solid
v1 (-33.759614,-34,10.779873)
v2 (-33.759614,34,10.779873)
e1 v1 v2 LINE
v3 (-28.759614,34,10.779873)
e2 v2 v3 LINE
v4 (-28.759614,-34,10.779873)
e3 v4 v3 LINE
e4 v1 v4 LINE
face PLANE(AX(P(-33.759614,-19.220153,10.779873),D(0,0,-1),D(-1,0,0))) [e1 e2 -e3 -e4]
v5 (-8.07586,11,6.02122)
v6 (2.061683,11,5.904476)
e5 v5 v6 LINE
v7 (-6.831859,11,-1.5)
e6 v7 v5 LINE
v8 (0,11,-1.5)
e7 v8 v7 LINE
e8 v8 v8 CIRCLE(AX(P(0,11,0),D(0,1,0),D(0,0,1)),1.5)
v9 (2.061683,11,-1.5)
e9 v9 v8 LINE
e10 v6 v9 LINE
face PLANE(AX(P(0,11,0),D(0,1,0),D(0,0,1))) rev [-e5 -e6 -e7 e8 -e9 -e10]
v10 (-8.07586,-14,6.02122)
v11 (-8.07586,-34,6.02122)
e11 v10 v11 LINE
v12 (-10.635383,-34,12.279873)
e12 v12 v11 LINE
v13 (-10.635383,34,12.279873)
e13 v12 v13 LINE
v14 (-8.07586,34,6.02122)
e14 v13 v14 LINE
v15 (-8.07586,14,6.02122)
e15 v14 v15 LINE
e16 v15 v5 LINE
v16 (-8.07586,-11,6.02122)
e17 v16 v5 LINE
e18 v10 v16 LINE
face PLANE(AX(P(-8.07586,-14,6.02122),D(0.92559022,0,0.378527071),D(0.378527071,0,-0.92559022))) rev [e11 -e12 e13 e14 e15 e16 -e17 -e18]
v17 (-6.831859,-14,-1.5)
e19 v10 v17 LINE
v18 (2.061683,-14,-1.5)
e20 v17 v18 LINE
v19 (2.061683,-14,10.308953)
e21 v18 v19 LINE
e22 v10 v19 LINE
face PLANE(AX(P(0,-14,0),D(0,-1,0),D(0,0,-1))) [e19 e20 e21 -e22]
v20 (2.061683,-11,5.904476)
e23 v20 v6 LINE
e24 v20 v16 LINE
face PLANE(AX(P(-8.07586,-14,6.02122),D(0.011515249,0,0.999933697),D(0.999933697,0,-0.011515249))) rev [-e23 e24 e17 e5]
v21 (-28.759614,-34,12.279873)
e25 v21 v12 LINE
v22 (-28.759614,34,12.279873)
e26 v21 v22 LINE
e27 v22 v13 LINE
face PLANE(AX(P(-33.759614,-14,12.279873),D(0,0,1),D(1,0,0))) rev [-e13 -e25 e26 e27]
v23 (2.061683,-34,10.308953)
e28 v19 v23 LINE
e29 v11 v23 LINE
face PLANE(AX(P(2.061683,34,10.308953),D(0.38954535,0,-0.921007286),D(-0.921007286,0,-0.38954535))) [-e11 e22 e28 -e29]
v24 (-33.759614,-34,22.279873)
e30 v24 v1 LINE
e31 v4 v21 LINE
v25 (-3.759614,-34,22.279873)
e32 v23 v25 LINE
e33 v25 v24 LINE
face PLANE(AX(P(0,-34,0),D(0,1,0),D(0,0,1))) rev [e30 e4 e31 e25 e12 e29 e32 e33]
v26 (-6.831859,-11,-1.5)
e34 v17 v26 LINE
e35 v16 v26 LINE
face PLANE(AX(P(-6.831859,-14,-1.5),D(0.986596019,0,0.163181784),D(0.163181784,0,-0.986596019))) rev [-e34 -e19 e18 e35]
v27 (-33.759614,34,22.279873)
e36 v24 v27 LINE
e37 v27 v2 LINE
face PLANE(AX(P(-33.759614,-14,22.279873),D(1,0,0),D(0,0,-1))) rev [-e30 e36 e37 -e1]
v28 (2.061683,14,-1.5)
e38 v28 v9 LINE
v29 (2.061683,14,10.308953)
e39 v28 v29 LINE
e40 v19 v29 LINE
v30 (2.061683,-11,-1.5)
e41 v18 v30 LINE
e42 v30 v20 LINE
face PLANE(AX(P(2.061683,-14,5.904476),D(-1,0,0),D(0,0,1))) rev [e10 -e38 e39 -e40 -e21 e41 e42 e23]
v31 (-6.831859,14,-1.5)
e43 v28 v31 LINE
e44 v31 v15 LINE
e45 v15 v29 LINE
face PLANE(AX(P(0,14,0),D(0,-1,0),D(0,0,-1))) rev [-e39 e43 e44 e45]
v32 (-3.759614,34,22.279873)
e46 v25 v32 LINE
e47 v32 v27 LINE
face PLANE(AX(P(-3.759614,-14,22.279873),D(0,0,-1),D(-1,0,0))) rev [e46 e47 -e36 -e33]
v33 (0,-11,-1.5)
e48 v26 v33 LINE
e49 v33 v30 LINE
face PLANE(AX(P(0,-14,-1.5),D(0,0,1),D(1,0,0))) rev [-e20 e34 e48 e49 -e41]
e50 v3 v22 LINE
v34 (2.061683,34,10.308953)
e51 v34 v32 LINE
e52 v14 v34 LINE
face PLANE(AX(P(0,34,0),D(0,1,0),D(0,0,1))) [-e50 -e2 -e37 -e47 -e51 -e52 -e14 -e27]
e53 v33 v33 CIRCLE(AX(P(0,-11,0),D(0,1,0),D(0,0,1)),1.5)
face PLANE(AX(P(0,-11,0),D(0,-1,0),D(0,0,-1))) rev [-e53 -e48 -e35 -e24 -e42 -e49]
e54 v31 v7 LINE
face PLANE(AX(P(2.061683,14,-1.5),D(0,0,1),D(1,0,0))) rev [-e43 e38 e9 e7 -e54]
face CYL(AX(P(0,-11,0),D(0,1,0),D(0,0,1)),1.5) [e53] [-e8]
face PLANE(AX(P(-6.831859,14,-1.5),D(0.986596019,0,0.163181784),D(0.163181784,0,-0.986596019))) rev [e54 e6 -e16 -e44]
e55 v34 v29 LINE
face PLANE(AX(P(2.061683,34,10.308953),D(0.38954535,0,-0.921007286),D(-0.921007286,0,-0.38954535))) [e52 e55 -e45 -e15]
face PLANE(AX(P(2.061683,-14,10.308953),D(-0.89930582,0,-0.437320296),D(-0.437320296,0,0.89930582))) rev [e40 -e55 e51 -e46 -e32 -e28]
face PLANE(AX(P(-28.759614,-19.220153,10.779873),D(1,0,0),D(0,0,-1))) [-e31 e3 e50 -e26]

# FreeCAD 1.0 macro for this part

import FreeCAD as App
import Part
import Sketcher

V = App.Vector
Q = App.Units.Quantity


def add_polygon(sketch, points):
    """Adds a closed chain of lines whose ends are joined by coincident constraints."""
    first, n = sketch.GeometryCount, len(points)
    for a, b in zip(points, points[1:] + points[:1]):
        sketch.addGeometry(Part.LineSegment(App.Vector(*a, 0), App.Vector(*b, 0)), False)
    for i in range(n):
        sketch.addConstraint(Sketcher.Constraint("Coincident", first + i, 2, first + (i + 1) % n, 1))

doc = App.newDocument("Part")
body = doc.addObject("PartDesign::Body", "Body")

# Sketch on XZ plane
sketch1 = body.newObject("Sketcher::SketchObject", "Sketch")
sketch1.AttachmentSupport = (doc.getObject("XZ_Plane"), [""])
sketch1.MapMode = "FlatFace"
sketch1.addGeometry(Part.Circle(V(0, 0, 0), V(0, 0, 1), 1.5), False)
sketch1.addConstraint([
    Sketcher.Constraint("Coincident", 0, 3, -1, 1),
    Sketcher.Constraint("Diameter", 0, Q("3 mm")),
])
pad1 = body.newObject("PartDesign::Pad", "Pad")
pad1.Profile = sketch1
pad1.Type = "TwoLengths"
pad1.Length = 11
pad1.Length2 = 11
pad1.Reversed = True
body2 = doc.addObject("PartDesign::Body", "Body001")

# Sketch on XZ plane
sketch2 = body2.newObject("Sketcher::SketchObject", "Sketch001")
sketch2.AttachmentSupport = (doc.getObject("XZ_Plane001"), [""])
sketch2.MapMode = "FlatFace"
sketch2.AttachmentOffset = App.Placement(V(0, 0, 11), App.Rotation())
add_polygon(sketch2, [(2.061683, 10.308953), (-3.759614, 22.279873), (-33.759614, 22.279873), (-33.759614, 12.279873), (-28.759614, 12.279873), (-28.759614, 10.279873), (-23.759614, 10.279873), (-23.759614, 12.279873), (-10.635383, 12.279873), (-8.07586, 6.02122), (2.061683, 5.904476)])  # lines 0-10
sketch2.addConstraint([
    Sketcher.Constraint("Horizontal", 1),
    Sketcher.Constraint("Vertical", 2),
    Sketcher.Constraint("Horizontal", 3),
    Sketcher.Constraint("Vertical", 4),
    Sketcher.Constraint("Horizontal", 5),
    Sketcher.Constraint("Vertical", 6),
    Sketcher.Constraint("Horizontal", 7),
    Sketcher.Constraint("Vertical", 10),
    Sketcher.Constraint("Horizontal", 3, 2, 6, 2),
    Sketcher.Constraint("Equal", 3, 5),
    Sketcher.Constraint("DistanceX", 1, 2, 1, 1, Q("30 mm")),
    Sketcher.Constraint("DistanceX", 3, 1, 3, 2, Q("5 mm")),
    Sketcher.Constraint("DistanceY", 2, 2, 2, 1, Q("10 mm")),
    Sketcher.Constraint("DistanceY", 4, 2, 4, 1, Q("2 mm")),
    Sketcher.Constraint("DistanceX", 7, 1, 7, 2, Q("13.124231 mm")),
    Sketcher.Constraint("Distance", 0, Q("13.31129 mm")),
    Sketcher.Constraint("DistanceY", 10, 1, 10, 2, Q("4.404476 mm")),
    Sketcher.Constraint("DistanceX", 8, 2, -1, 1, Q("8.07586 mm")),
    Sketcher.Constraint("DistanceY", -1, 1, 8, 2, Q("6.02122 mm")),
    Sketcher.Constraint("DistanceY", 10, 2, 7, 2, Q("1.97092 mm")),
    Sketcher.Constraint("Distance", 8, Q("6.761796 mm")),
    Sketcher.Constraint("Distance", 9, Q("10.138215 mm")),
])
pad2 = body2.newObject("PartDesign::Pad", "Pad001")
pad2.Profile = sketch2
pad2.Type = "TwoLengths"
pad2.Length = 3
pad2.Length2 = 25
body.AllowCompound = True
doc.recompute()

boolean = body.newObject("PartDesign::Boolean", "Boolean")
boolean.Type = "Fuse"
boolean.addObjects([body2])

# Sketch on XZ plane
sketch3 = body.newObject("Sketcher::SketchObject", "Sketch002")
sketch3.AttachmentSupport = (doc.getObject("XZ_Plane"), [""])
sketch3.MapMode = "FlatFace"
sketch3.AttachmentOffset = App.Placement(V(0, 0, 11), App.Rotation())
add_polygon(sketch3, [(-6.831859, -1.5), (2.061683, -1.5), (2.061683, 5.904476), (-8.07586, 6.02122)])  # lines 0-3
sketch3.addConstraint([
    Sketcher.Constraint("Horizontal", 0),
    Sketcher.Constraint("Vertical", 1),
    Sketcher.Constraint("DistanceY", 0, 2, -1, 1, Q("1.5 mm")),
    Sketcher.Constraint("DistanceX", 2, 2, 3, 2, Q("1.244001 mm")),
    Sketcher.Constraint("DistanceX", 0, 1, 0, 2, Q("8.893542 mm")),
    Sketcher.Constraint("DistanceY", 1, 1, 1, 2, Q("7.404476 mm")),
    Sketcher.Constraint("DistanceX", 2, 2, -1, 1, Q("8.07586 mm")),
    Sketcher.Constraint("DistanceY", -1, 1, 2, 2, Q("6.02122 mm")),
])
pad3 = body.newObject("PartDesign::Pad", "Pad002")
pad3.Profile = sketch3
pad3.Length = 3

# Sketch on XZ plane
sketch4 = body.newObject("Sketcher::SketchObject", "Sketch003")
sketch4.AttachmentSupport = (doc.getObject("XZ_Plane"), [""])
sketch4.MapMode = "FlatFace"
sketch4.AttachmentOffset = App.Placement(V(0, 0, -11), App.Rotation())
add_polygon(sketch4, [(2.061683, -1.5), (-6.831859, -1.5), (-8.07586, 6.02122), (2.061683, 5.904476)])  # lines 0-3
sketch4.addConstraint([
    Sketcher.Constraint("Horizontal", 0),
    Sketcher.Constraint("Vertical", 3),
    Sketcher.Constraint("DistanceY", 0, 2, -1, 1, Q("1.5 mm")),
    Sketcher.Constraint("DistanceX", 1, 2, 0, 2, Q("1.244001 mm")),
    Sketcher.Constraint("DistanceX", 0, 2, 0, 1, Q("8.893542 mm")),
    Sketcher.Constraint("DistanceY", 3, 2, 3, 1, Q("7.404476 mm")),
    Sketcher.Constraint("DistanceX", 0, 2, -1, 1, Q("6.831859 mm")),
    Sketcher.Constraint("DistanceY", -1, 1, 1, 2, Q("6.02122 mm")),
])
pad4 = body.newObject("PartDesign::Pad", "Pad003")
pad4.Profile = sketch4
pad4.Length = 3
pad4.Reversed = True

# Sketch on XZ plane
sketch5 = body.newObject("Sketcher::SketchObject", "Sketch004")
sketch5.AttachmentSupport = (doc.getObject("XZ_Plane"), [""])
sketch5.MapMode = "FlatFace"
sketch5.AttachmentOffset = App.Placement(V(0, 0, -14), App.Rotation())
add_polygon(sketch5, [(-28.759614, 10.279873), (-28.759614, 12.279873), (-23.759614, 12.279873), (-23.759614, 10.279873)])  # lines 0-3
sketch5.addConstraint([
    Sketcher.Constraint("Vertical", 0),
    Sketcher.Constraint("Horizontal", 1),
    Sketcher.Constraint("Vertical", 2),
    Sketcher.Constraint("Horizontal", 3),
    Sketcher.Constraint("DistanceX", 1, 1, 1, 2, Q("5 mm")),
    Sketcher.Constraint("DistanceY", 0, 1, 0, 2, Q("2 mm")),
    Sketcher.Constraint("DistanceX", 0, 2, -1, 1, Q("28.759614 mm")),
    Sketcher.Constraint("DistanceY", -1, 1, 0, 2, Q("12.279873 mm")),
])
pocket1 = body.newObject("PartDesign::Pocket", "Pocket")
pocket1.Profile = sketch5
pocket1.Length = 39
pocket1.Reversed = True

# Sketch on XZ plane
sketch6 = body.newObject("Sketcher::SketchObject", "Sketch005")
sketch6.AttachmentSupport = (doc.getObject("XZ_Plane"), [""])
sketch6.MapMode = "FlatFace"
sketch6.AttachmentOffset = App.Placement(V(0, 0, -14), App.Rotation())
add_polygon(sketch6, [(-33.759614, 10.779873), (-33.759614, 12.279873), (-28.759614, 12.279873), (-28.759614, 10.779873)])  # lines 0-3
sketch6.addConstraint([
    Sketcher.Constraint("Vertical", 0),
    Sketcher.Constraint("Horizontal", 1),
    Sketcher.Constraint("Vertical", 2),
    Sketcher.Constraint("Horizontal", 3),
    Sketcher.Constraint("DistanceX", 1, 1, 1, 2, Q("5 mm")),
    Sketcher.Constraint("DistanceY", 0, 1, 0, 2, Q("1.5 mm")),
    Sketcher.Constraint("DistanceX", 0, 2, -1, 1, Q("33.759614 mm")),
    Sketcher.Constraint("DistanceY", -1, 1, 0, 2, Q("12.279873 mm")),
])
pad5 = body.newObject("PartDesign::Pad", "Pad004")
pad5.Profile = sketch6
pad5.Length = 28

# Sketch on XZ plane
sketch7 = body.newObject("Sketcher::SketchObject", "Sketch006")
sketch7.AttachmentSupport = (doc.getObject("XZ_Plane"), [""])
sketch7.MapMode = "FlatFace"
sketch7.AttachmentOffset = App.Placement(V(0, 0, 14), App.Rotation())
add_polygon(sketch7, [(-8.07586, 6.02122), (2.061683, 10.308953), (-3.759614, 22.279873), (-33.759614, 22.279873), (-33.759614, 10.779873), (-28.759614, 10.779873), (-28.759614, 12.279873), (-10.635383, 12.279873)])  # lines 0-7
sketch7.addConstraint([
    Sketcher.Constraint("Horizontal", 2),
    Sketcher.Constraint("Vertical", 3),
    Sketcher.Constraint("Horizontal", 4),
    Sketcher.Constraint("Vertical", 5),
    Sketcher.Constraint("Horizontal", 6),
    Sketcher.Constraint("DistanceX", 2, 2, 2, 1, Q("30 mm")),
    Sketcher.Constraint("DistanceX", 4, 1, 4, 2, Q("5 mm")),
    Sketcher.Constraint("DistanceY", 3, 2, 3, 1, Q("11.5 mm")),
    Sketcher.Constraint("DistanceY", 5, 1, 5, 2, Q("1.5 mm")),
    Sketcher.Constraint("DistanceX", 6, 1, 6, 2, Q("18.124231 mm")),
    Sketcher.Constraint("Distance", 1, Q("13.31129 mm")),
    Sketcher.Constraint("DistanceX", 7, 2, -1, 1, Q("8.07586 mm")),
    Sketcher.Constraint("DistanceY", -1, 1, 7, 2, Q("6.02122 mm")),
    Sketcher.Constraint("DistanceY", 0, 2, 1, 2, Q("11.97092 mm")),
    Sketcher.Constraint("Distance", 0, Q("11.007017 mm")),
    Sketcher.Constraint("Distance", 7, Q("6.761796 mm")),
])
pad6 = body.newObject("PartDesign::Pad", "Pad005")
pad6.Profile = sketch7
pad6.Type = "TwoLengths"
pad6.Length = 20
pad6.Length2 = 48

doc.recompute()
